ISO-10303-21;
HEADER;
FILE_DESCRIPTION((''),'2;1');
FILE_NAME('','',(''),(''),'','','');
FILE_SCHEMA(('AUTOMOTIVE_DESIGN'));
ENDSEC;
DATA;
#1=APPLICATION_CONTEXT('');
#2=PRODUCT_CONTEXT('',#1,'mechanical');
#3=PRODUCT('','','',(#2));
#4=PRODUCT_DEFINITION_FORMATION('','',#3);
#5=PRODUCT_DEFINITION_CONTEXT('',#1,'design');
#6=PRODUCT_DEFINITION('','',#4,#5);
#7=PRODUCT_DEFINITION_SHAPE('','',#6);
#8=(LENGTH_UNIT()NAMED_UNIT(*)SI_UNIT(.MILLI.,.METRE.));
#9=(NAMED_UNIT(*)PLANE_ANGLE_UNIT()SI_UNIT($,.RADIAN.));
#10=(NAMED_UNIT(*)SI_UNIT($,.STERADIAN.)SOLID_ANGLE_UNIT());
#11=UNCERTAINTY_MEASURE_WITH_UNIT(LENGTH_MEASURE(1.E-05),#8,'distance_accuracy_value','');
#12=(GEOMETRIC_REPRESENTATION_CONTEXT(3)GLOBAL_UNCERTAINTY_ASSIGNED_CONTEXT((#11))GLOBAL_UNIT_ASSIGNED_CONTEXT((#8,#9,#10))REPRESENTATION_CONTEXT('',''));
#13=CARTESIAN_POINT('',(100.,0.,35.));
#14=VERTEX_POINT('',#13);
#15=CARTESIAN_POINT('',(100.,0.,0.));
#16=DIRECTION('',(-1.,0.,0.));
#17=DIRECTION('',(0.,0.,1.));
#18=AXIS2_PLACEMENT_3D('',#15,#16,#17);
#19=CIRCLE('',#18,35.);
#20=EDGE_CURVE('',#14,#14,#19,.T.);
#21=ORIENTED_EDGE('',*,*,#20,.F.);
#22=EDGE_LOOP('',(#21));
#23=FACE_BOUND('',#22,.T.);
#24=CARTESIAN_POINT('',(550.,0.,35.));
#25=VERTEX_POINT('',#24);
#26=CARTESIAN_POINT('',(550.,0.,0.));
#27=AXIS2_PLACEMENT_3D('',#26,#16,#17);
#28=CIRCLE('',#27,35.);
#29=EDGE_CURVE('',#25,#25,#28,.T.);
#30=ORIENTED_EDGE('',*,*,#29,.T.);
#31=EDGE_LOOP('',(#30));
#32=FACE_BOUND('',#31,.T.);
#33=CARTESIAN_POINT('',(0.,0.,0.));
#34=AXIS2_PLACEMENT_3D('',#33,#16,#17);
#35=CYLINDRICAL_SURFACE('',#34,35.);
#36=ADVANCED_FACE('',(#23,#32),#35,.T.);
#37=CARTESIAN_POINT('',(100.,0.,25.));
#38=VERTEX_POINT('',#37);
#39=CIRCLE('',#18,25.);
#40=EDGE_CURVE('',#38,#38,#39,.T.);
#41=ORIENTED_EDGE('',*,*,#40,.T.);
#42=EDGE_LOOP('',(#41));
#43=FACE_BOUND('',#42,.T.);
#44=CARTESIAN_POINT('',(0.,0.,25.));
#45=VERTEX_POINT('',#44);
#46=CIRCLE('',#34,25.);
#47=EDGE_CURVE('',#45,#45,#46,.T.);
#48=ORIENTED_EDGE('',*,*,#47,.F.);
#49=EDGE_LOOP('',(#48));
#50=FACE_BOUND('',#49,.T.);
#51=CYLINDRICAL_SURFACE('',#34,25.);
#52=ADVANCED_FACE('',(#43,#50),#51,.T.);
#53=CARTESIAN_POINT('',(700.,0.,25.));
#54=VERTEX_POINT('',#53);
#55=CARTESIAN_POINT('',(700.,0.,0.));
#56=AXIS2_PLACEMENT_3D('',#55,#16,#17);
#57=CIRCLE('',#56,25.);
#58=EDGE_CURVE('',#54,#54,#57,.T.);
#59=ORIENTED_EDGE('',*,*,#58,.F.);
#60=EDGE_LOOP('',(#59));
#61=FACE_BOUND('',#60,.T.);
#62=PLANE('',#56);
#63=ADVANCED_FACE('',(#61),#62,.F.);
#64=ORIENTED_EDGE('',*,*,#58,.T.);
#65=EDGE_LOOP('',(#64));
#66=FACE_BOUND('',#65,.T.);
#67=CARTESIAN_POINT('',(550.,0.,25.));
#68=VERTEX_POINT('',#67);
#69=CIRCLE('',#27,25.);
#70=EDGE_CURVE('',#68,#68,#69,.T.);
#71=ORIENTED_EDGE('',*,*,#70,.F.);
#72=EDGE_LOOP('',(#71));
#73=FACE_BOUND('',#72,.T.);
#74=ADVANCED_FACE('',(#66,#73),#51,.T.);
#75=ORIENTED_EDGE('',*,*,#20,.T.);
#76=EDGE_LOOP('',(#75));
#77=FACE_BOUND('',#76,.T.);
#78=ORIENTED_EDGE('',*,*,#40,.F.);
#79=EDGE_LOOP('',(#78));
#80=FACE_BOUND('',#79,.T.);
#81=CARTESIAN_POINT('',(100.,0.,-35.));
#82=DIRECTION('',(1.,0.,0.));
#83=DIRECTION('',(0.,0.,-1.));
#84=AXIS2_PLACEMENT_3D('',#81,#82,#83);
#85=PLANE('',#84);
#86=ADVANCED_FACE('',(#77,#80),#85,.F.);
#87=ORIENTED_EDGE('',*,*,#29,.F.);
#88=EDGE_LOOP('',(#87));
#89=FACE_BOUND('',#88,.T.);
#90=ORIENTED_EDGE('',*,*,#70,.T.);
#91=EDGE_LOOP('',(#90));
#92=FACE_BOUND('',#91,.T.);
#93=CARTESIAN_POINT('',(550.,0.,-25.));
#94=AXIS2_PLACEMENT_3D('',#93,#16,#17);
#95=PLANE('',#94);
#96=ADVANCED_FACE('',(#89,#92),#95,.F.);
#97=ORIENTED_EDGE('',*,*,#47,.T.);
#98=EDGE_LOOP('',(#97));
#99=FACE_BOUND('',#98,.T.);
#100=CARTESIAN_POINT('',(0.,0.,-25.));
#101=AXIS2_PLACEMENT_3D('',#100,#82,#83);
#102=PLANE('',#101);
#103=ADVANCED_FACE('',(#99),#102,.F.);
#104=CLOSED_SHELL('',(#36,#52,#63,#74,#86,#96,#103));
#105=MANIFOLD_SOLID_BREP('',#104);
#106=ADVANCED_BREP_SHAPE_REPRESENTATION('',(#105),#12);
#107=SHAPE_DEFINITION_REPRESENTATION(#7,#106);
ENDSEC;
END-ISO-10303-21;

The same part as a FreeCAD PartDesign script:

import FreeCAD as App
import Part
import Sketcher

V = App.Vector
Q = App.Units.Quantity

doc = App.newDocument("Part")
body = doc.addObject("PartDesign::Body", "Body")

# Sketch on XZ plane
sketch1 = body.newObject("Sketcher::SketchObject", "Sketch")
sketch1.AttachmentSupport = (doc.getObject("XZ_Plane"), [""])
sketch1.MapMode = "FlatFace"
sketch1.addGeometry([
    Part.LineSegment(V(0, 0, 0), V(700, 0, 0)),  # 0
    Part.LineSegment(V(700, 0, 0), V(700, -25, 0)),  # 1
    Part.LineSegment(V(700, -25, 0), V(550, -25, 0)),  # 2
    Part.LineSegment(V(550, -25, 0), V(550, -35, 0)),  # 3
    Part.LineSegment(V(550, -35, 0), V(100, -35, 0)),  # 4
    Part.LineSegment(V(100, -35, 0), V(100, -25, 0)),  # 5
    Part.LineSegment(V(100, -25, 0), V(0, -25, 0)),  # 6
    Part.LineSegment(V(0, -25, 0), V(0, 0, 0)),  # 7
], False)
sketch1.addConstraint([
    Sketcher.Constraint("Coincident", 0, 2, 1, 1),
    Sketcher.Constraint("Coincident", 1, 2, 2, 1),
    Sketcher.Constraint("Coincident", 2, 2, 3, 1),
    Sketcher.Constraint("Coincident", 3, 2, 4, 1),
    Sketcher.Constraint("Coincident", 4, 2, 5, 1),
    Sketcher.Constraint("Coincident", 5, 2, 6, 1),
    Sketcher.Constraint("Coincident", 6, 2, 7, 1),
    Sketcher.Constraint("Coincident", 7, 2, 0, 1),
    Sketcher.Constraint("Horizontal", 0),
    Sketcher.Constraint("Vertical", 1),
    Sketcher.Constraint("Horizontal", 2),
    Sketcher.Constraint("Vertical", 3),
    Sketcher.Constraint("Horizontal", 4),
    Sketcher.Constraint("Vertical", 5),
    Sketcher.Constraint("Horizontal", 6),
    Sketcher.Constraint("Vertical", 7),
    Sketcher.Constraint("Coincident", 7, 2, -1, 1),
    Sketcher.Constraint("Horizontal", 2, 2, 5, 2),
    Sketcher.Constraint("DistanceX", 0, 1, 0, 2, Q("700 mm")),
    Sketcher.Constraint("DistanceX", 2, 2, 2, 1, Q("150 mm")),
    Sketcher.Constraint("DistanceX", 4, 2, 4, 1, Q("450 mm")),
    Sketcher.Constraint("DistanceY", 1, 2, 1, 1, Q("25 mm")),
    Sketcher.Constraint("DistanceY", 3, 2, 3, 1, Q("10 mm")),
])
revolution = body.newObject("PartDesign::Revolution", "Revolution")
revolution.Profile = sketch1
revolution.ReferenceAxis = (sketch1, ["H_Axis"])
revolution.Angle = 360

doc.recompute()
